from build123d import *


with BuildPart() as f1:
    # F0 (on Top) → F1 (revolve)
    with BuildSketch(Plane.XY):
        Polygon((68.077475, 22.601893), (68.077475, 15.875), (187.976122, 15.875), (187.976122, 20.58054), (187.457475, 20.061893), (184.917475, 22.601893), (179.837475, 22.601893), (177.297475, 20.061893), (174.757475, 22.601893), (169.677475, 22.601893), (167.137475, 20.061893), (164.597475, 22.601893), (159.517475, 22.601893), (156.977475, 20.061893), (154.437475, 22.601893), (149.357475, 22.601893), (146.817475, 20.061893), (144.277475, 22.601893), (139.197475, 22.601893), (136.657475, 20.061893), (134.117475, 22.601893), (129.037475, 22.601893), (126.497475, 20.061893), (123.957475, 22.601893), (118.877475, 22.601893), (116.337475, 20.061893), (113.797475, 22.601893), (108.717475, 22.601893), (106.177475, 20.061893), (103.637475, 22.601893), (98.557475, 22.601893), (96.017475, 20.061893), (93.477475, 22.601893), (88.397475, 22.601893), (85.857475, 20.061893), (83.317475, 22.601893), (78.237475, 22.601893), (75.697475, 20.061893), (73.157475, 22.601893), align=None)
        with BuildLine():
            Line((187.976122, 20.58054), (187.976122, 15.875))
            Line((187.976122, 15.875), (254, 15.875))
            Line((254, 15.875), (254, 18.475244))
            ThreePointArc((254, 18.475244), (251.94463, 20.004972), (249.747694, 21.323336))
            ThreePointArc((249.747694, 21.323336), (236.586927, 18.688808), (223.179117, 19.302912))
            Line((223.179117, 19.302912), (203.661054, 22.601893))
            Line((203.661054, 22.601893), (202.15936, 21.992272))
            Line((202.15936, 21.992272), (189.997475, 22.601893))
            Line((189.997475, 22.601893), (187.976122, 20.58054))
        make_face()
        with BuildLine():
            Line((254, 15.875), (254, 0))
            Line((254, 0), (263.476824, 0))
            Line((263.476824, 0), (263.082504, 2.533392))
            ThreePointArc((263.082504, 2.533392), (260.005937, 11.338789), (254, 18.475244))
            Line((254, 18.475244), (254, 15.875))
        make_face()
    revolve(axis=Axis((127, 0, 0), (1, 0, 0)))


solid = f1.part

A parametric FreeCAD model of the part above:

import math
import FreeCAD as App
import Part
import Sketcher
from FreeCAD import Vector
Q = App.Units.Quantity

doc = App.newDocument("Part")
body = doc.addObject("PartDesign::Body", "Body")

sketch1 = body.newObject("Sketcher::SketchObject", "Sketch")
sketch1.AttachmentSupport = (doc.getObject("XY_Plane"), [""])
sketch1.MapMode = "FlatFace"
sketch1.addGeometry(Part.LineSegment(Vector(68.1, 22.6, 0), Vector(68.1, 15.9, 0)), False)
sketch1.addGeometry(Part.LineSegment(Vector(68.1, 15.9, 0), Vector(254, 15.9, 0)), False)
sketch1.addGeometry(Part.LineSegment(Vector(254, 15.9, 0), Vector(254, 0, 0)), False)
sketch1.addGeometry(Part.LineSegment(Vector(254, 0, 0), Vector(263.5, 0, 0)), False)
sketch1.addGeometry(Part.LineSegment(Vector(263.5, 0, 0), Vector(263.1, 2.5, 0)), False)
sketch1.addGeometry(Part.ArcOfCircle(Part.Circle(Vector(237.6, -1.4, 0), Vector(0, 0, 1), 25.8), math.radians(9), math.radians(50)), False)
sketch1.addGeometry(Part.ArcOfCircle(Part.Circle(Vector(237.6, -1.4, 0), Vector(0, 0, 1), 25.8), math.radians(50.5), math.radians(61.88)), False)
sketch1.addGeometry(Part.ArcOfCircle(Part.Circle(Vector(232.4, 73.8, 0), Vector(0, 0, 1), 55.3), math.radians(-100), math.radians(-72)), False)
sketch1.addGeometry(Part.LineSegment(Vector(223.2, 19.3, 0), Vector(203.7, 22.6, 0)), False)
sketch1.addGeometry(Part.LineSegment(Vector(203.7, 22.6, 0), Vector(202.2, 22, 0)), False)
sketch1.addGeometry(Part.LineSegment(Vector(202.2, 22, 0), Vector(190, 22.6, 0)), False)
sketch1.addGeometry(Part.LineSegment(Vector(190, 22.6, 0), Vector(187.5, 20.1, 0)), False)
sketch1.addGeometry(Part.LineSegment(Vector(187.5, 20.1, 0), Vector(184.9, 22.6, 0)), False)
sketch1.addGeometry(Part.LineSegment(Vector(184.9, 22.6, 0), Vector(179.8, 22.6, 0)), False)
sketch1.addGeometry(Part.LineSegment(Vector(179.8, 22.6, 0), Vector(177.3, 20.1, 0)), False)
sketch1.addGeometry(Part.LineSegment(Vector(177.3, 20.1, 0), Vector(174.8, 22.6, 0)), False)
sketch1.addGeometry(Part.LineSegment(Vector(174.8, 22.6, 0), Vector(169.7, 22.6, 0)), False)
sketch1.addGeometry(Part.LineSegment(Vector(169.7, 22.6, 0), Vector(167.1, 20.1, 0)), False)
sketch1.addGeometry(Part.LineSegment(Vector(167.1, 20.1, 0), Vector(164.6, 22.6, 0)), False)
sketch1.addGeometry(Part.LineSegment(Vector(164.6, 22.6, 0), Vector(159.5, 22.6, 0)), False)
sketch1.addGeometry(Part.LineSegment(Vector(159.5, 22.6, 0), Vector(157, 20.1, 0)), False)
sketch1.addGeometry(Part.LineSegment(Vector(157, 20.1, 0), Vector(154.4, 22.6, 0)), False)
sketch1.addGeometry(Part.LineSegment(Vector(154.4, 22.6, 0), Vector(149.4, 22.6, 0)), False)
sketch1.addGeometry(Part.LineSegment(Vector(149.4, 22.6, 0), Vector(146.8, 20.1, 0)), False)
sketch1.addGeometry(Part.LineSegment(Vector(146.8, 20.1, 0), Vector(144.3, 22.6, 0)), False)
sketch1.addGeometry(Part.LineSegment(Vector(144.3, 22.6, 0), Vector(139.2, 22.6, 0)), False)
sketch1.addGeometry(Part.LineSegment(Vector(139.2, 22.6, 0), Vector(136.7, 20.1, 0)), False)
sketch1.addGeometry(Part.LineSegment(Vector(136.7, 20.1, 0), Vector(134.1, 22.6, 0)), False)
sketch1.addGeometry(Part.LineSegment(Vector(134.1, 22.6, 0), Vector(129, 22.6, 0)), False)
sketch1.addGeometry(Part.LineSegment(Vector(129, 22.6, 0), Vector(126.5, 20.1, 0)), False)
sketch1.addGeometry(Part.LineSegment(Vector(126.5, 20.1, 0), Vector(124, 22.6, 0)), False)
sketch1.addGeometry(Part.LineSegment(Vector(124, 22.6, 0), Vector(118.9, 22.6, 0)), False)
sketch1.addGeometry(Part.LineSegment(Vector(118.9, 22.6, 0), Vector(116.3, 20.1, 0)), False)
sketch1.addGeometry(Part.LineSegment(Vector(116.3, 20.1, 0), Vector(113.8, 22.6, 0)), False)
sketch1.addGeometry(Part.LineSegment(Vector(113.8, 22.6, 0), Vector(108.7, 22.6, 0)), False)
sketch1.addGeometry(Part.LineSegment(Vector(108.7, 22.6, 0), Vector(106.2, 20.1, 0)), False)
sketch1.addGeometry(Part.LineSegment(Vector(106.2, 20.1, 0), Vector(103.6, 22.6, 0)), False)
sketch1.addGeometry(Part.LineSegment(Vector(103.6, 22.6, 0), Vector(98.6, 22.6, 0)), False)
sketch1.addGeometry(Part.LineSegment(Vector(98.6, 22.6, 0), Vector(96, 20.1, 0)), False)
sketch1.addGeometry(Part.LineSegment(Vector(96, 20.1, 0), Vector(93.5, 22.6, 0)), False)
sketch1.addGeometry(Part.LineSegment(Vector(93.5, 22.6, 0), Vector(88.4, 22.6, 0)), False)
sketch1.addGeometry(Part.LineSegment(Vector(88.4, 22.6, 0), Vector(85.9, 20.1, 0)), False)
sketch1.addGeometry(Part.LineSegment(Vector(85.9, 20.1, 0), Vector(83.3, 22.6, 0)), False)
sketch1.addGeometry(Part.LineSegment(Vector(83.3, 22.6, 0), Vector(78.2, 22.6, 0)), False)
sketch1.addGeometry(Part.LineSegment(Vector(78.2, 22.6, 0), Vector(75.7, 20.1, 0)), False)
sketch1.addGeometry(Part.LineSegment(Vector(75.7, 20.1, 0), Vector(73.2, 22.6, 0)), False)
sketch1.addGeometry(Part.LineSegment(Vector(73.2, 22.6, 0), Vector(68.1, 22.6, 0)), False)
sketch1.addConstraint(Sketcher.Constraint("Coincident", 0, 2, 1, 1))
sketch1.addConstraint(Sketcher.Constraint("Coincident", 1, 2, 2, 1))
sketch1.addConstraint(Sketcher.Constraint("Coincident", 2, 2, 3, 1))
sketch1.addConstraint(Sketcher.Constraint("Coincident", 3, 2, 4, 1))
sketch1.addConstraint(Sketcher.Constraint("Tangent", 4, 2, 5, 1))
sketch1.addConstraint(Sketcher.Constraint("Tangent", 5, 2, 6, 1))
sketch1.addConstraint(Sketcher.Constraint("Coincident", 6, 2, 7, 2))
sketch1.addConstraint(Sketcher.Constraint("Tangent", 7, 1, 8, 1))
sketch1.addConstraint(Sketcher.Constraint("Coincident", 8, 2, 9, 1))
sketch1.addConstraint(Sketcher.Constraint("Coincident", 9, 2, 10, 1))
sketch1.addConstraint(Sketcher.Constraint("Coincident", 10, 2, 11, 1))
sketch1.addConstraint(Sketcher.Constraint("Coincident", 11, 2, 12, 1))
sketch1.addConstraint(Sketcher.Constraint("Coincident", 12, 2, 13, 1))
sketch1.addConstraint(Sketcher.Constraint("Coincident", 13, 2, 14, 1))
sketch1.addConstraint(Sketcher.Constraint("Coincident", 14, 2, 15, 1))
sketch1.addConstraint(Sketcher.Constraint("Coincident", 15, 2, 16, 1))
sketch1.addConstraint(Sketcher.Constraint("Coincident", 16, 2, 17, 1))
sketch1.addConstraint(Sketcher.Constraint("Coincident", 17, 2, 18, 1))
sketch1.addConstraint(Sketcher.Constraint("Coincident", 18, 2, 19, 1))
sketch1.addConstraint(Sketcher.Constraint("Coincident", 19, 2, 20, 1))
sketch1.addConstraint(Sketcher.Constraint("Coincident", 20, 2, 21, 1))
sketch1.addConstraint(Sketcher.Constraint("Coincident", 21, 2, 22, 1))
sketch1.addConstraint(Sketcher.Constraint("Coincident", 22, 2, 23, 1))
sketch1.addConstraint(Sketcher.Constraint("Coincident", 23, 2, 24, 1))
sketch1.addConstraint(Sketcher.Constraint("Coincident", 24, 2, 25, 1))
sketch1.addConstraint(Sketcher.Constraint("Coincident", 25, 2, 26, 1))
sketch1.addConstraint(Sketcher.Constraint("Coincident", 26, 2, 27, 1))
sketch1.addConstraint(Sketcher.Constraint("Coincident", 27, 2, 28, 1))
sketch1.addConstraint(Sketcher.Constraint("Coincident", 28, 2, 29, 1))
sketch1.addConstraint(Sketcher.Constraint("Coincident", 29, 2, 30, 1))
sketch1.addConstraint(Sketcher.Constraint("Coincident", 30, 2, 31, 1))
sketch1.addConstraint(Sketcher.Constraint("Coincident", 31, 2, 32, 1))
sketch1.addConstraint(Sketcher.Constraint("Coincident", 32, 2, 33, 1))
sketch1.addConstraint(Sketcher.Constraint("Coincident", 33, 2, 34, 1))
sketch1.addConstraint(Sketcher.Constraint("Coincident", 34, 2, 35, 1))
sketch1.addConstraint(Sketcher.Constraint("Coincident", 35, 2, 36, 1))
sketch1.addConstraint(Sketcher.Constraint("Coincident", 36, 2, 37, 1))
sketch1.addConstraint(Sketcher.Constraint("Coincident", 37, 2, 38, 1))
sketch1.addConstraint(Sketcher.Constraint("Coincident", 38, 2, 39, 1))
sketch1.addConstraint(Sketcher.Constraint("Coincident", 39, 2, 40, 1))
sketch1.addConstraint(Sketcher.Constraint("Coincident", 40, 2, 41, 1))
sketch1.addConstraint(Sketcher.Constraint("Coincident", 41, 2, 42, 1))
sketch1.addConstraint(Sketcher.Constraint("Coincident", 42, 2, 43, 1))
sketch1.addConstraint(Sketcher.Constraint("Coincident", 43, 2, 44, 1))
sketch1.addConstraint(Sketcher.Constraint("Coincident", 44, 2, 45, 1))
sketch1.addConstraint(Sketcher.Constraint("Coincident", 45, 2, 46, 1))
sketch1.addConstraint(Sketcher.Constraint("Coincident", 46, 2, 0, 1))
sketch1.addConstraint(Sketcher.Constraint("Vertical", 0))
sketch1.addConstraint(Sketcher.Constraint("Horizontal", 1))
sketch1.addConstraint(Sketcher.Constraint("Vertical", 2))
sketch1.addConstraint(Sketcher.Constraint("Horizontal", 3))
sketch1.addConstraint(Sketcher.Constraint("Horizontal", 13))
sketch1.addConstraint(Sketcher.Constraint("Horizontal", 16))
sketch1.addConstraint(Sketcher.Constraint("Horizontal", 19))
sketch1.addConstraint(Sketcher.Constraint("Horizontal", 22))
sketch1.addConstraint(Sketcher.Constraint("Horizontal", 25))
sketch1.addConstraint(Sketcher.Constraint("Horizontal", 28))
sketch1.addConstraint(Sketcher.Constraint("Horizontal", 31))
sketch1.addConstraint(Sketcher.Constraint("Horizontal", 34))
sketch1.addConstraint(Sketcher.Constraint("Horizontal", 37))
sketch1.addConstraint(Sketcher.Constraint("Horizontal", 40))
sketch1.addConstraint(Sketcher.Constraint("Horizontal", 43))
sketch1.addConstraint(Sketcher.Constraint("Horizontal", 46))
sketch1.addConstraint(Sketcher.Constraint("PointOnObject", 2, 2, -1))
sketch1.addConstraint(Sketcher.Constraint("Perpendicular", 11, 12))
sketch1.addConstraint(Sketcher.Constraint("Perpendicular", 12, 14))
sketch1.addConstraint(Sketcher.Constraint("Perpendicular", 14, 15))
sketch1.addConstraint(Sketcher.Constraint("Perpendicular", 15, 17))
sketch1.addConstraint(Sketcher.Constraint("Perpendicular", 17, 18))
sketch1.addConstraint(Sketcher.Constraint("Perpendicular", 18, 20))
sketch1.addConstraint(Sketcher.Constraint("Perpendicular", 20, 21))
sketch1.addConstraint(Sketcher.Constraint("Perpendicular", 21, 23))
sketch1.addConstraint(Sketcher.Constraint("Perpendicular", 23, 24))
sketch1.addConstraint(Sketcher.Constraint("Perpendicular", 24, 26))
sketch1.addConstraint(Sketcher.Constraint("Perpendicular", 26, 27))
sketch1.addConstraint(Sketcher.Constraint("Perpendicular", 27, 29))
sketch1.addConstraint(Sketcher.Constraint("Perpendicular", 29, 30))
sketch1.addConstraint(Sketcher.Constraint("Perpendicular", 30, 32))
sketch1.addConstraint(Sketcher.Constraint("Perpendicular", 32, 33))
sketch1.addConstraint(Sketcher.Constraint("Perpendicular", 33, 35))
sketch1.addConstraint(Sketcher.Constraint("Perpendicular", 35, 36))
sketch1.addConstraint(Sketcher.Constraint("Perpendicular", 36, 38))
sketch1.addConstraint(Sketcher.Constraint("Perpendicular", 38, 39))
sketch1.addConstraint(Sketcher.Constraint("Perpendicular", 39, 41))
sketch1.addConstraint(Sketcher.Constraint("Perpendicular", 41, 42))
sketch1.addConstraint(Sketcher.Constraint("Perpendicular", 42, 44))
sketch1.addConstraint(Sketcher.Constraint("Perpendicular", 44, 45))
sketch1.addConstraint(Sketcher.Constraint("Horizontal", 8, 2, 10, 2))
sketch1.addConstraint(Sketcher.Constraint("Horizontal", 10, 2, 12, 2))
sketch1.addConstraint(Sketcher.Constraint("Horizontal", 11, 2, 14, 2))
sketch1.addConstraint(Sketcher.Constraint("Horizontal", 13, 2, 15, 2))
sketch1.addConstraint(Sketcher.Constraint("Horizontal", 14, 2, 17, 2))
sketch1.addConstraint(Sketcher.Constraint("Horizontal", 16, 2, 18, 2))
sketch1.addConstraint(Sketcher.Constraint("Horizontal", 17, 2, 20, 2))
sketch1.addConstraint(Sketcher.Constraint("Horizontal", 19, 2, 21, 2))
sketch1.addConstraint(Sketcher.Constraint("Horizontal", 20, 2, 23, 2))
sketch1.addConstraint(Sketcher.Constraint("Horizontal", 22, 2, 24, 2))
sketch1.addConstraint(Sketcher.Constraint("Horizontal", 23, 2, 26, 2))
sketch1.addConstraint(Sketcher.Constraint("Horizontal", 25, 2, 27, 2))
sketch1.addConstraint(Sketcher.Constraint("Horizontal", 26, 2, 29, 2))
sketch1.addConstraint(Sketcher.Constraint("Horizontal", 28, 2, 30, 2))
sketch1.addConstraint(Sketcher.Constraint("Horizontal", 29, 2, 32, 2))
sketch1.addConstraint(Sketcher.Constraint("Horizontal", 31, 2, 33, 2))
sketch1.addConstraint(Sketcher.Constraint("Horizontal", 32, 2, 35, 2))
sketch1.addConstraint(Sketcher.Constraint("Horizontal", 34, 2, 36, 2))
sketch1.addConstraint(Sketcher.Constraint("Horizontal", 35, 2, 38, 2))
sketch1.addConstraint(Sketcher.Constraint("Horizontal", 37, 2, 39, 2))
sketch1.addConstraint(Sketcher.Constraint("Horizontal", 38, 2, 41, 2))
sketch1.addConstraint(Sketcher.Constraint("Horizontal", 40, 2, 42, 2))
sketch1.addConstraint(Sketcher.Constraint("Horizontal", 41, 2, 44, 2))
sketch1.addConstraint(Sketcher.Constraint("Horizontal", 43, 2, 45, 2))
sketch1.addConstraint(Sketcher.Constraint("Vertical", 2, 2, 5, 2))
sketch1.addConstraint(Sketcher.Constraint("Equal", 13, 16))
sketch1.addConstraint(Sketcher.Constraint("Equal", 16, 19))
sketch1.addConstraint(Sketcher.Constraint("Equal", 19, 22))
sketch1.addConstraint(Sketcher.Constraint("Equal", 22, 25))
sketch1.addConstraint(Sketcher.Constraint("Equal", 25, 28))
sketch1.addConstraint(Sketcher.Constraint("Equal", 28, 31))
sketch1.addConstraint(Sketcher.Constraint("Equal", 31, 34))
sketch1.addConstraint(Sketcher.Constraint("Equal", 34, 37))
sketch1.addConstraint(Sketcher.Constraint("Equal", 37, 40))
sketch1.addConstraint(Sketcher.Constraint("Equal", 40, 43))
sketch1.addConstraint(Sketcher.Constraint("Equal", 43, 46))
sketch1.addConstraint(Sketcher.Constraint("Equal", 11, 12))
sketch1.addConstraint(Sketcher.Constraint("DistanceX", 13, 2, 13, 1, Q("0.2 in")))
sketch1.addConstraint(Sketcher.Constraint("DistanceX", -1, 1, 1, 2, Q("10 in")))
sketch1.addConstraint(Sketcher.Constraint("DistanceX", 11, 2, 10, 2, Q("0.1 in")))
sketch1.addConstraint(Sketcher.Constraint("DistanceY", 2, 2, 2, 1, Q("0.625 in")))
sketch1.addConstraint(Sketcher.Constraint("Radius", 6, Q("25.80503 mm")))
sketch1.addConstraint(Sketcher.Constraint("Radius", 7, Q("55.29339 mm")))
sketch1.addConstraint(Sketcher.Constraint("Radius", 5, Q("25.805115 mm")))
sketch1.addConstraint(Sketcher.Constraint("Distance", 8, Q("19.7949 mm")))
sketch1.addConstraint(Sketcher.Constraint("DistanceX", 1, 1, 1, 2, Q("185.922525 mm")))
sketch1.addConstraint(Sketcher.Constraint("DistanceX", 3, 1, 3, 2, Q("9.476824 mm")))
sketch1.addConstraint(Sketcher.Constraint("DistanceY", 0, 2, 0, 1, Q("6.726893 mm")))
sketch1.addConstraint(Sketcher.Constraint("DistanceY", -1, 1, 7, 3, Q("73.823009 mm")))
sketch1.addConstraint(Sketcher.Constraint("DistanceX", -1, 1, 9, 2, Q("202.15936 mm")))
sketch1.addConstraint(Sketcher.Constraint("DistanceY", -1, 1, 9, 2, Q("21.992272 mm")))
sketch1.addConstraint(Sketcher.Constraint("DistanceY", 5, 3, 7, 3, Q("75.258372 mm")))
sketch1.addConstraint(Sketcher.Constraint("DistanceX", 7, 3, 3, 2, Q("31.082611 mm")))
sketch1.addConstraint(Sketcher.Constraint("DistanceX", 4, 2, 3, 2, Q("0.39432 mm")))
revolution = body.newObject("PartDesign::Revolution", "Revolution")
revolution.Profile = sketch1
revolution.ReferenceAxis = (sketch1, ["H_Axis"])
revolution.Angle = 360

doc.recompute()
